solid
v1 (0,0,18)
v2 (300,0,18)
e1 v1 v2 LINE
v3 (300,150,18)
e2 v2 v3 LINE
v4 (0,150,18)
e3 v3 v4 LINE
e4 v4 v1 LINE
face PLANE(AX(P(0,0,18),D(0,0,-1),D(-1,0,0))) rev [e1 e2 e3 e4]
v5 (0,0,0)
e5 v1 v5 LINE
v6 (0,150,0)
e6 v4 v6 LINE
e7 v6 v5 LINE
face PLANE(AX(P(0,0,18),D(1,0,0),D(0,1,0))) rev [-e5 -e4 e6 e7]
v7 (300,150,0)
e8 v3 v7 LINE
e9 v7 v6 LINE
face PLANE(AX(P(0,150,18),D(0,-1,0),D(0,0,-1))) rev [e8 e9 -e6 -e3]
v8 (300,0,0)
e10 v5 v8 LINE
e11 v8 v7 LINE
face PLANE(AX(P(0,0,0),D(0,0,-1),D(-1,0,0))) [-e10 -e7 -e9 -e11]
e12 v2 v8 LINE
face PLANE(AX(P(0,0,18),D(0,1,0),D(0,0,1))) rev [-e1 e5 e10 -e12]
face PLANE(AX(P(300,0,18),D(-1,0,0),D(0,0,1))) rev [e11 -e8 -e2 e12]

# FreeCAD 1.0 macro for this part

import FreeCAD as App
import Part
import Sketcher
from FreeCAD import Vector


def add_polygon(sketch, points):
    """Adds a closed chain of lines whose ends are joined by coincident constraints."""
    first, n = sketch.GeometryCount, len(points)
    for a, b in zip(points, points[1:] + points[:1]):
        sketch.addGeometry(Part.LineSegment(App.Vector(*a, 0), App.Vector(*b, 0)), False)
    for i in range(n):
        sketch.addConstraint(Sketcher.Constraint("Coincident", first + i, 2, first + (i + 1) % n, 1))

doc = App.newDocument("Part")
body = doc.addObject("PartDesign::Body", "Body")

# Sketch on XY plane
sketch1 = body.newObject("Sketcher::SketchObject", "Sketch")
sketch1.AttachmentSupport = (doc.getObject("XY_Plane"), [""])
sketch1.MapMode = "FlatFace"
add_polygon(sketch1, [(0, 150), (0, 0), (300, 0), (300, 150)])  # lines 0-3
sketch1.addConstraint(Sketcher.Constraint("Vertical", 0))
sketch1.addConstraint(Sketcher.Constraint("Horizontal", 1))
sketch1.addConstraint(Sketcher.Constraint("Vertical", 2))
sketch1.addConstraint(Sketcher.Constraint("Horizontal", 3))
sketch1.addConstraint(Sketcher.Constraint("Coincident", 0, 2, -1, 1))
sketch1.addConstraint(Sketcher.Constraint("DistanceX", 1, 1, 1, 2, 300.0))
sketch1.addConstraint(Sketcher.Constraint("DistanceY", 0, 2, 0, 1, 150.0))
pad1 = body.newObject("PartDesign::Pad", "Pad")
pad1.Profile = sketch1
pad1.Length = 18

doc.recompute()
